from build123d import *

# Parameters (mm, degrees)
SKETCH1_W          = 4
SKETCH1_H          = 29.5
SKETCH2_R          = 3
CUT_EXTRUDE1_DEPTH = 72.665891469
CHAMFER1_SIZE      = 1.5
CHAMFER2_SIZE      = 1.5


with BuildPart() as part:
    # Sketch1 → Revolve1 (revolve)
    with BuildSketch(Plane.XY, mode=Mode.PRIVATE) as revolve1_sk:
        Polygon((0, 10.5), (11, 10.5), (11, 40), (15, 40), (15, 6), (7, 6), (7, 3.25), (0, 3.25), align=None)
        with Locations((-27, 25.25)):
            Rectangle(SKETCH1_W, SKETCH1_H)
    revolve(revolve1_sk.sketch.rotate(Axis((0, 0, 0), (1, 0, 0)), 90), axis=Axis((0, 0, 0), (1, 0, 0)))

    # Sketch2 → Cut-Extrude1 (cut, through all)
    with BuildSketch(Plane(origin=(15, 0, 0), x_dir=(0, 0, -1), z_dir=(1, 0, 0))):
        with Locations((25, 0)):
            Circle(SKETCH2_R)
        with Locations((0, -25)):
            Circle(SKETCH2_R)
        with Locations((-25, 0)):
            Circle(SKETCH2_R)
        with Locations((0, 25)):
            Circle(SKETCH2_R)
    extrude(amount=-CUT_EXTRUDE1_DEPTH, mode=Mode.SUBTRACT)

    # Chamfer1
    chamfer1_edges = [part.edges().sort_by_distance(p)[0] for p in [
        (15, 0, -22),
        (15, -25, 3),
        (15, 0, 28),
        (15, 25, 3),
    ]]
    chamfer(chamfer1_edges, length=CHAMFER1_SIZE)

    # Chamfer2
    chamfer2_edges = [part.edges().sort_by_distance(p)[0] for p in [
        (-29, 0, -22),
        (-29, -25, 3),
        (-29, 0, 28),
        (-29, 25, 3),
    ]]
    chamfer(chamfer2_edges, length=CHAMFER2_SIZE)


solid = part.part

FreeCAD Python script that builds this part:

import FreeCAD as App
import Part
import Sketcher
Q = App.Units.Quantity


def edges_at(feature, points):
    """Names of the edges that pass closest to the given points."""
    edges = feature.Shape.Edges
    near = lambda p: min(range(len(edges)), key=lambda i: edges[i].distToShape(Part.Vertex(*p))[0])
    return sorted({f"Edge{near(p) + 1}" for p in points})

doc = App.newDocument("Part")
body = doc.addObject("PartDesign::Body", "Body")
body.AllowCompound = True

sketch1 = doc.addObject("Sketcher::SketchObject", "Sketch")
body.addObject(sketch1)
sketch1.AttachmentSupport = (doc.XY_Plane, [""])
sketch1.MapMode = "FlatFace"
sketch1.addGeometry(Part.LineSegment(App.Vector(11, 10.5, 0), App.Vector(0, 10.5, 0)), False)
sketch1.addGeometry(Part.LineSegment(App.Vector(0, 10.5, 0), App.Vector(0, 3.2, 0)), False)
sketch1.addGeometry(Part.LineSegment(App.Vector(0, 3.2, 0), App.Vector(7, 3.2, 0)), False)
sketch1.addGeometry(Part.LineSegment(App.Vector(7, 3.2, 0), App.Vector(7, 6, 0)), False)
sketch1.addGeometry(Part.LineSegment(App.Vector(7, 6, 0), App.Vector(15, 6, 0)), False)
sketch1.addGeometry(Part.LineSegment(App.Vector(15, 6, 0), App.Vector(15, 40, 0)), False)
sketch1.addGeometry(Part.LineSegment(App.Vector(15, 40, 0), App.Vector(11, 40, 0)), False)
sketch1.addGeometry(Part.LineSegment(App.Vector(11, 40, 0), App.Vector(11, 10.5, 0)), False)
sketch1.addGeometry(Part.LineSegment(App.Vector(-29, 40, 0), App.Vector(-29, 10.5, 0)), False)
sketch1.addGeometry(Part.LineSegment(App.Vector(-29, 10.5, 0), App.Vector(-25, 10.5, 0)), False)
sketch1.addGeometry(Part.LineSegment(App.Vector(-25, 10.5, 0), App.Vector(-25, 40, 0)), False)
sketch1.addGeometry(Part.LineSegment(App.Vector(-25, 40, 0), App.Vector(-29, 40, 0)), False)
sketch1.addConstraint(Sketcher.Constraint("Coincident", 0, 2, 1, 1))
sketch1.addConstraint(Sketcher.Constraint("Coincident", 1, 2, 2, 1))
sketch1.addConstraint(Sketcher.Constraint("Coincident", 2, 2, 3, 1))
sketch1.addConstraint(Sketcher.Constraint("Coincident", 3, 2, 4, 1))
sketch1.addConstraint(Sketcher.Constraint("Coincident", 4, 2, 5, 1))
sketch1.addConstraint(Sketcher.Constraint("Coincident", 5, 2, 6, 1))
sketch1.addConstraint(Sketcher.Constraint("Coincident", 6, 2, 7, 1))
sketch1.addConstraint(Sketcher.Constraint("Coincident", 7, 2, 0, 1))
sketch1.addConstraint(Sketcher.Constraint("Coincident", 8, 2, 9, 1))
sketch1.addConstraint(Sketcher.Constraint("Coincident", 9, 2, 10, 1))
sketch1.addConstraint(Sketcher.Constraint("Coincident", 10, 2, 11, 1))
sketch1.addConstraint(Sketcher.Constraint("Coincident", 11, 2, 8, 1))
sketch1.addConstraint(Sketcher.Constraint("Horizontal", 0))
sketch1.addConstraint(Sketcher.Constraint("Vertical", 1))
sketch1.addConstraint(Sketcher.Constraint("Horizontal", 2))
sketch1.addConstraint(Sketcher.Constraint("Vertical", 3))
sketch1.addConstraint(Sketcher.Constraint("Horizontal", 4))
sketch1.addConstraint(Sketcher.Constraint("Vertical", 5))
sketch1.addConstraint(Sketcher.Constraint("Horizontal", 6))
sketch1.addConstraint(Sketcher.Constraint("Vertical", 7))
sketch1.addConstraint(Sketcher.Constraint("Vertical", 8))
sketch1.addConstraint(Sketcher.Constraint("Horizontal", 9))
sketch1.addConstraint(Sketcher.Constraint("Vertical", 10))
sketch1.addConstraint(Sketcher.Constraint("Horizontal", 11))
sketch1.addConstraint(Sketcher.Constraint("PointOnObject", 0, 2, -2))
sketch1.addConstraint(Sketcher.Constraint("Horizontal", 7, 2, 8, 2))
sketch1.addConstraint(Sketcher.Constraint("Horizontal", 6, 2, 10, 2))
sketch1.addConstraint(Sketcher.Constraint("Equal", 6, 9))
sketch1.addConstraint(Sketcher.Constraint("DistanceX", 0, 2, 0, 1, Q("11 mm")))
sketch1.addConstraint(Sketcher.Constraint("DistanceX", 2, 1, 2, 2, Q("7 mm")))
sketch1.addConstraint(Sketcher.Constraint("DistanceX", 4, 1, 4, 2, Q("8 mm")))
sketch1.addConstraint(Sketcher.Constraint("DistanceY", 5, 1, 5, 2, Q("34 mm")))
sketch1.addConstraint(Sketcher.Constraint("DistanceY", 7, 2, 7, 1, Q("29.5 mm")))
sketch1.addConstraint(Sketcher.Constraint("DistanceY", -1, 1, 3, 2, Q("6 mm")))
sketch1.addConstraint(Sketcher.Constraint("DistanceX", 8, 2, -1, 1, Q("29 mm")))
sketch1.addConstraint(Sketcher.Constraint("DistanceY", 1, 2, 1, 1, Q("7.25 mm")))
revolution = doc.addObject("PartDesign::Revolution", "Revolution")
body.addObject(revolution)
revolution.Profile = sketch1
revolution.ReferenceAxis = (sketch1, ["H_Axis"])
revolution.Angle = 360

sketch2 = doc.addObject("Sketcher::SketchObject", "Sketch001")
body.addObject(sketch2)
sketch2.AttachmentSupport = (doc.YZ_Plane, [""])
sketch2.MapMode = "FlatFace"
sketch2.AttachmentOffset = App.Placement(App.Vector(0, 0, 15), App.Rotation())
sketch2.addGeometry(Part.Circle(App.Vector(0, -25, 0), App.Vector(0, 0, 1), 3), False)
sketch2.addGeometry(Part.Circle(App.Vector(-25, 0, 0), App.Vector(0, 0, 1), 3), False)
sketch2.addGeometry(Part.Circle(App.Vector(0, 25, 0), App.Vector(0, 0, 1), 3), False)
sketch2.addGeometry(Part.Circle(App.Vector(25, 0, 0), App.Vector(0, 0, 1), 3), False)
sketch2.addConstraint(Sketcher.Constraint("Equal", 0, 1))
sketch2.addConstraint(Sketcher.Constraint("Equal", 1, 2))
sketch2.addConstraint(Sketcher.Constraint("Equal", 2, 3))
sketch2.addConstraint(Sketcher.Constraint("Symmetric", 0, 3, 2, 3, -1, 1))
sketch2.addConstraint(Sketcher.Constraint("Symmetric", 1, 3, 3, 3, -1, 1))
sketch2.addConstraint(Sketcher.Constraint("PointOnObject", 0, 3, -2))
sketch2.addConstraint(Sketcher.Constraint("PointOnObject", 1, 3, -1))
sketch2.addConstraint(Sketcher.Constraint("Diameter", 0, Q("6 mm")))
sketch2.addConstraint(Sketcher.Constraint("DistanceY", 0, 3, -1, 1, Q("25 mm")))
sketch2.addConstraint(Sketcher.Constraint("DistanceX", 1, 3, -1, 1, Q("25 mm")))
pocket1 = doc.addObject("PartDesign::Pocket", "Pocket")
body.addObject(pocket1)
pocket1.Profile = sketch2
pocket1.Type = "ThroughAll"
doc.recompute()

chamfer = doc.addObject("PartDesign::Chamfer", "Chamfer")
body.addObject(chamfer)
chamfer.Base = (pocket1, edges_at(pocket1, [
    (15, 0, -22),
    (15, -25, 3),
    (15, 0, 28),
    (15, 25, 3),
]))
chamfer.Size = 1.5
doc.recompute()

chamfer2 = doc.addObject("PartDesign::Chamfer", "Chamfer001")
body.addObject(chamfer2)
chamfer2.Base = (chamfer, edges_at(chamfer, [
    (-29, 0, -22),
    (-29, -25, 3),
    (-29, 0, 28),
    (-29, 25, 3),
]))
chamfer2.Size = 1.5

doc.recompute()
